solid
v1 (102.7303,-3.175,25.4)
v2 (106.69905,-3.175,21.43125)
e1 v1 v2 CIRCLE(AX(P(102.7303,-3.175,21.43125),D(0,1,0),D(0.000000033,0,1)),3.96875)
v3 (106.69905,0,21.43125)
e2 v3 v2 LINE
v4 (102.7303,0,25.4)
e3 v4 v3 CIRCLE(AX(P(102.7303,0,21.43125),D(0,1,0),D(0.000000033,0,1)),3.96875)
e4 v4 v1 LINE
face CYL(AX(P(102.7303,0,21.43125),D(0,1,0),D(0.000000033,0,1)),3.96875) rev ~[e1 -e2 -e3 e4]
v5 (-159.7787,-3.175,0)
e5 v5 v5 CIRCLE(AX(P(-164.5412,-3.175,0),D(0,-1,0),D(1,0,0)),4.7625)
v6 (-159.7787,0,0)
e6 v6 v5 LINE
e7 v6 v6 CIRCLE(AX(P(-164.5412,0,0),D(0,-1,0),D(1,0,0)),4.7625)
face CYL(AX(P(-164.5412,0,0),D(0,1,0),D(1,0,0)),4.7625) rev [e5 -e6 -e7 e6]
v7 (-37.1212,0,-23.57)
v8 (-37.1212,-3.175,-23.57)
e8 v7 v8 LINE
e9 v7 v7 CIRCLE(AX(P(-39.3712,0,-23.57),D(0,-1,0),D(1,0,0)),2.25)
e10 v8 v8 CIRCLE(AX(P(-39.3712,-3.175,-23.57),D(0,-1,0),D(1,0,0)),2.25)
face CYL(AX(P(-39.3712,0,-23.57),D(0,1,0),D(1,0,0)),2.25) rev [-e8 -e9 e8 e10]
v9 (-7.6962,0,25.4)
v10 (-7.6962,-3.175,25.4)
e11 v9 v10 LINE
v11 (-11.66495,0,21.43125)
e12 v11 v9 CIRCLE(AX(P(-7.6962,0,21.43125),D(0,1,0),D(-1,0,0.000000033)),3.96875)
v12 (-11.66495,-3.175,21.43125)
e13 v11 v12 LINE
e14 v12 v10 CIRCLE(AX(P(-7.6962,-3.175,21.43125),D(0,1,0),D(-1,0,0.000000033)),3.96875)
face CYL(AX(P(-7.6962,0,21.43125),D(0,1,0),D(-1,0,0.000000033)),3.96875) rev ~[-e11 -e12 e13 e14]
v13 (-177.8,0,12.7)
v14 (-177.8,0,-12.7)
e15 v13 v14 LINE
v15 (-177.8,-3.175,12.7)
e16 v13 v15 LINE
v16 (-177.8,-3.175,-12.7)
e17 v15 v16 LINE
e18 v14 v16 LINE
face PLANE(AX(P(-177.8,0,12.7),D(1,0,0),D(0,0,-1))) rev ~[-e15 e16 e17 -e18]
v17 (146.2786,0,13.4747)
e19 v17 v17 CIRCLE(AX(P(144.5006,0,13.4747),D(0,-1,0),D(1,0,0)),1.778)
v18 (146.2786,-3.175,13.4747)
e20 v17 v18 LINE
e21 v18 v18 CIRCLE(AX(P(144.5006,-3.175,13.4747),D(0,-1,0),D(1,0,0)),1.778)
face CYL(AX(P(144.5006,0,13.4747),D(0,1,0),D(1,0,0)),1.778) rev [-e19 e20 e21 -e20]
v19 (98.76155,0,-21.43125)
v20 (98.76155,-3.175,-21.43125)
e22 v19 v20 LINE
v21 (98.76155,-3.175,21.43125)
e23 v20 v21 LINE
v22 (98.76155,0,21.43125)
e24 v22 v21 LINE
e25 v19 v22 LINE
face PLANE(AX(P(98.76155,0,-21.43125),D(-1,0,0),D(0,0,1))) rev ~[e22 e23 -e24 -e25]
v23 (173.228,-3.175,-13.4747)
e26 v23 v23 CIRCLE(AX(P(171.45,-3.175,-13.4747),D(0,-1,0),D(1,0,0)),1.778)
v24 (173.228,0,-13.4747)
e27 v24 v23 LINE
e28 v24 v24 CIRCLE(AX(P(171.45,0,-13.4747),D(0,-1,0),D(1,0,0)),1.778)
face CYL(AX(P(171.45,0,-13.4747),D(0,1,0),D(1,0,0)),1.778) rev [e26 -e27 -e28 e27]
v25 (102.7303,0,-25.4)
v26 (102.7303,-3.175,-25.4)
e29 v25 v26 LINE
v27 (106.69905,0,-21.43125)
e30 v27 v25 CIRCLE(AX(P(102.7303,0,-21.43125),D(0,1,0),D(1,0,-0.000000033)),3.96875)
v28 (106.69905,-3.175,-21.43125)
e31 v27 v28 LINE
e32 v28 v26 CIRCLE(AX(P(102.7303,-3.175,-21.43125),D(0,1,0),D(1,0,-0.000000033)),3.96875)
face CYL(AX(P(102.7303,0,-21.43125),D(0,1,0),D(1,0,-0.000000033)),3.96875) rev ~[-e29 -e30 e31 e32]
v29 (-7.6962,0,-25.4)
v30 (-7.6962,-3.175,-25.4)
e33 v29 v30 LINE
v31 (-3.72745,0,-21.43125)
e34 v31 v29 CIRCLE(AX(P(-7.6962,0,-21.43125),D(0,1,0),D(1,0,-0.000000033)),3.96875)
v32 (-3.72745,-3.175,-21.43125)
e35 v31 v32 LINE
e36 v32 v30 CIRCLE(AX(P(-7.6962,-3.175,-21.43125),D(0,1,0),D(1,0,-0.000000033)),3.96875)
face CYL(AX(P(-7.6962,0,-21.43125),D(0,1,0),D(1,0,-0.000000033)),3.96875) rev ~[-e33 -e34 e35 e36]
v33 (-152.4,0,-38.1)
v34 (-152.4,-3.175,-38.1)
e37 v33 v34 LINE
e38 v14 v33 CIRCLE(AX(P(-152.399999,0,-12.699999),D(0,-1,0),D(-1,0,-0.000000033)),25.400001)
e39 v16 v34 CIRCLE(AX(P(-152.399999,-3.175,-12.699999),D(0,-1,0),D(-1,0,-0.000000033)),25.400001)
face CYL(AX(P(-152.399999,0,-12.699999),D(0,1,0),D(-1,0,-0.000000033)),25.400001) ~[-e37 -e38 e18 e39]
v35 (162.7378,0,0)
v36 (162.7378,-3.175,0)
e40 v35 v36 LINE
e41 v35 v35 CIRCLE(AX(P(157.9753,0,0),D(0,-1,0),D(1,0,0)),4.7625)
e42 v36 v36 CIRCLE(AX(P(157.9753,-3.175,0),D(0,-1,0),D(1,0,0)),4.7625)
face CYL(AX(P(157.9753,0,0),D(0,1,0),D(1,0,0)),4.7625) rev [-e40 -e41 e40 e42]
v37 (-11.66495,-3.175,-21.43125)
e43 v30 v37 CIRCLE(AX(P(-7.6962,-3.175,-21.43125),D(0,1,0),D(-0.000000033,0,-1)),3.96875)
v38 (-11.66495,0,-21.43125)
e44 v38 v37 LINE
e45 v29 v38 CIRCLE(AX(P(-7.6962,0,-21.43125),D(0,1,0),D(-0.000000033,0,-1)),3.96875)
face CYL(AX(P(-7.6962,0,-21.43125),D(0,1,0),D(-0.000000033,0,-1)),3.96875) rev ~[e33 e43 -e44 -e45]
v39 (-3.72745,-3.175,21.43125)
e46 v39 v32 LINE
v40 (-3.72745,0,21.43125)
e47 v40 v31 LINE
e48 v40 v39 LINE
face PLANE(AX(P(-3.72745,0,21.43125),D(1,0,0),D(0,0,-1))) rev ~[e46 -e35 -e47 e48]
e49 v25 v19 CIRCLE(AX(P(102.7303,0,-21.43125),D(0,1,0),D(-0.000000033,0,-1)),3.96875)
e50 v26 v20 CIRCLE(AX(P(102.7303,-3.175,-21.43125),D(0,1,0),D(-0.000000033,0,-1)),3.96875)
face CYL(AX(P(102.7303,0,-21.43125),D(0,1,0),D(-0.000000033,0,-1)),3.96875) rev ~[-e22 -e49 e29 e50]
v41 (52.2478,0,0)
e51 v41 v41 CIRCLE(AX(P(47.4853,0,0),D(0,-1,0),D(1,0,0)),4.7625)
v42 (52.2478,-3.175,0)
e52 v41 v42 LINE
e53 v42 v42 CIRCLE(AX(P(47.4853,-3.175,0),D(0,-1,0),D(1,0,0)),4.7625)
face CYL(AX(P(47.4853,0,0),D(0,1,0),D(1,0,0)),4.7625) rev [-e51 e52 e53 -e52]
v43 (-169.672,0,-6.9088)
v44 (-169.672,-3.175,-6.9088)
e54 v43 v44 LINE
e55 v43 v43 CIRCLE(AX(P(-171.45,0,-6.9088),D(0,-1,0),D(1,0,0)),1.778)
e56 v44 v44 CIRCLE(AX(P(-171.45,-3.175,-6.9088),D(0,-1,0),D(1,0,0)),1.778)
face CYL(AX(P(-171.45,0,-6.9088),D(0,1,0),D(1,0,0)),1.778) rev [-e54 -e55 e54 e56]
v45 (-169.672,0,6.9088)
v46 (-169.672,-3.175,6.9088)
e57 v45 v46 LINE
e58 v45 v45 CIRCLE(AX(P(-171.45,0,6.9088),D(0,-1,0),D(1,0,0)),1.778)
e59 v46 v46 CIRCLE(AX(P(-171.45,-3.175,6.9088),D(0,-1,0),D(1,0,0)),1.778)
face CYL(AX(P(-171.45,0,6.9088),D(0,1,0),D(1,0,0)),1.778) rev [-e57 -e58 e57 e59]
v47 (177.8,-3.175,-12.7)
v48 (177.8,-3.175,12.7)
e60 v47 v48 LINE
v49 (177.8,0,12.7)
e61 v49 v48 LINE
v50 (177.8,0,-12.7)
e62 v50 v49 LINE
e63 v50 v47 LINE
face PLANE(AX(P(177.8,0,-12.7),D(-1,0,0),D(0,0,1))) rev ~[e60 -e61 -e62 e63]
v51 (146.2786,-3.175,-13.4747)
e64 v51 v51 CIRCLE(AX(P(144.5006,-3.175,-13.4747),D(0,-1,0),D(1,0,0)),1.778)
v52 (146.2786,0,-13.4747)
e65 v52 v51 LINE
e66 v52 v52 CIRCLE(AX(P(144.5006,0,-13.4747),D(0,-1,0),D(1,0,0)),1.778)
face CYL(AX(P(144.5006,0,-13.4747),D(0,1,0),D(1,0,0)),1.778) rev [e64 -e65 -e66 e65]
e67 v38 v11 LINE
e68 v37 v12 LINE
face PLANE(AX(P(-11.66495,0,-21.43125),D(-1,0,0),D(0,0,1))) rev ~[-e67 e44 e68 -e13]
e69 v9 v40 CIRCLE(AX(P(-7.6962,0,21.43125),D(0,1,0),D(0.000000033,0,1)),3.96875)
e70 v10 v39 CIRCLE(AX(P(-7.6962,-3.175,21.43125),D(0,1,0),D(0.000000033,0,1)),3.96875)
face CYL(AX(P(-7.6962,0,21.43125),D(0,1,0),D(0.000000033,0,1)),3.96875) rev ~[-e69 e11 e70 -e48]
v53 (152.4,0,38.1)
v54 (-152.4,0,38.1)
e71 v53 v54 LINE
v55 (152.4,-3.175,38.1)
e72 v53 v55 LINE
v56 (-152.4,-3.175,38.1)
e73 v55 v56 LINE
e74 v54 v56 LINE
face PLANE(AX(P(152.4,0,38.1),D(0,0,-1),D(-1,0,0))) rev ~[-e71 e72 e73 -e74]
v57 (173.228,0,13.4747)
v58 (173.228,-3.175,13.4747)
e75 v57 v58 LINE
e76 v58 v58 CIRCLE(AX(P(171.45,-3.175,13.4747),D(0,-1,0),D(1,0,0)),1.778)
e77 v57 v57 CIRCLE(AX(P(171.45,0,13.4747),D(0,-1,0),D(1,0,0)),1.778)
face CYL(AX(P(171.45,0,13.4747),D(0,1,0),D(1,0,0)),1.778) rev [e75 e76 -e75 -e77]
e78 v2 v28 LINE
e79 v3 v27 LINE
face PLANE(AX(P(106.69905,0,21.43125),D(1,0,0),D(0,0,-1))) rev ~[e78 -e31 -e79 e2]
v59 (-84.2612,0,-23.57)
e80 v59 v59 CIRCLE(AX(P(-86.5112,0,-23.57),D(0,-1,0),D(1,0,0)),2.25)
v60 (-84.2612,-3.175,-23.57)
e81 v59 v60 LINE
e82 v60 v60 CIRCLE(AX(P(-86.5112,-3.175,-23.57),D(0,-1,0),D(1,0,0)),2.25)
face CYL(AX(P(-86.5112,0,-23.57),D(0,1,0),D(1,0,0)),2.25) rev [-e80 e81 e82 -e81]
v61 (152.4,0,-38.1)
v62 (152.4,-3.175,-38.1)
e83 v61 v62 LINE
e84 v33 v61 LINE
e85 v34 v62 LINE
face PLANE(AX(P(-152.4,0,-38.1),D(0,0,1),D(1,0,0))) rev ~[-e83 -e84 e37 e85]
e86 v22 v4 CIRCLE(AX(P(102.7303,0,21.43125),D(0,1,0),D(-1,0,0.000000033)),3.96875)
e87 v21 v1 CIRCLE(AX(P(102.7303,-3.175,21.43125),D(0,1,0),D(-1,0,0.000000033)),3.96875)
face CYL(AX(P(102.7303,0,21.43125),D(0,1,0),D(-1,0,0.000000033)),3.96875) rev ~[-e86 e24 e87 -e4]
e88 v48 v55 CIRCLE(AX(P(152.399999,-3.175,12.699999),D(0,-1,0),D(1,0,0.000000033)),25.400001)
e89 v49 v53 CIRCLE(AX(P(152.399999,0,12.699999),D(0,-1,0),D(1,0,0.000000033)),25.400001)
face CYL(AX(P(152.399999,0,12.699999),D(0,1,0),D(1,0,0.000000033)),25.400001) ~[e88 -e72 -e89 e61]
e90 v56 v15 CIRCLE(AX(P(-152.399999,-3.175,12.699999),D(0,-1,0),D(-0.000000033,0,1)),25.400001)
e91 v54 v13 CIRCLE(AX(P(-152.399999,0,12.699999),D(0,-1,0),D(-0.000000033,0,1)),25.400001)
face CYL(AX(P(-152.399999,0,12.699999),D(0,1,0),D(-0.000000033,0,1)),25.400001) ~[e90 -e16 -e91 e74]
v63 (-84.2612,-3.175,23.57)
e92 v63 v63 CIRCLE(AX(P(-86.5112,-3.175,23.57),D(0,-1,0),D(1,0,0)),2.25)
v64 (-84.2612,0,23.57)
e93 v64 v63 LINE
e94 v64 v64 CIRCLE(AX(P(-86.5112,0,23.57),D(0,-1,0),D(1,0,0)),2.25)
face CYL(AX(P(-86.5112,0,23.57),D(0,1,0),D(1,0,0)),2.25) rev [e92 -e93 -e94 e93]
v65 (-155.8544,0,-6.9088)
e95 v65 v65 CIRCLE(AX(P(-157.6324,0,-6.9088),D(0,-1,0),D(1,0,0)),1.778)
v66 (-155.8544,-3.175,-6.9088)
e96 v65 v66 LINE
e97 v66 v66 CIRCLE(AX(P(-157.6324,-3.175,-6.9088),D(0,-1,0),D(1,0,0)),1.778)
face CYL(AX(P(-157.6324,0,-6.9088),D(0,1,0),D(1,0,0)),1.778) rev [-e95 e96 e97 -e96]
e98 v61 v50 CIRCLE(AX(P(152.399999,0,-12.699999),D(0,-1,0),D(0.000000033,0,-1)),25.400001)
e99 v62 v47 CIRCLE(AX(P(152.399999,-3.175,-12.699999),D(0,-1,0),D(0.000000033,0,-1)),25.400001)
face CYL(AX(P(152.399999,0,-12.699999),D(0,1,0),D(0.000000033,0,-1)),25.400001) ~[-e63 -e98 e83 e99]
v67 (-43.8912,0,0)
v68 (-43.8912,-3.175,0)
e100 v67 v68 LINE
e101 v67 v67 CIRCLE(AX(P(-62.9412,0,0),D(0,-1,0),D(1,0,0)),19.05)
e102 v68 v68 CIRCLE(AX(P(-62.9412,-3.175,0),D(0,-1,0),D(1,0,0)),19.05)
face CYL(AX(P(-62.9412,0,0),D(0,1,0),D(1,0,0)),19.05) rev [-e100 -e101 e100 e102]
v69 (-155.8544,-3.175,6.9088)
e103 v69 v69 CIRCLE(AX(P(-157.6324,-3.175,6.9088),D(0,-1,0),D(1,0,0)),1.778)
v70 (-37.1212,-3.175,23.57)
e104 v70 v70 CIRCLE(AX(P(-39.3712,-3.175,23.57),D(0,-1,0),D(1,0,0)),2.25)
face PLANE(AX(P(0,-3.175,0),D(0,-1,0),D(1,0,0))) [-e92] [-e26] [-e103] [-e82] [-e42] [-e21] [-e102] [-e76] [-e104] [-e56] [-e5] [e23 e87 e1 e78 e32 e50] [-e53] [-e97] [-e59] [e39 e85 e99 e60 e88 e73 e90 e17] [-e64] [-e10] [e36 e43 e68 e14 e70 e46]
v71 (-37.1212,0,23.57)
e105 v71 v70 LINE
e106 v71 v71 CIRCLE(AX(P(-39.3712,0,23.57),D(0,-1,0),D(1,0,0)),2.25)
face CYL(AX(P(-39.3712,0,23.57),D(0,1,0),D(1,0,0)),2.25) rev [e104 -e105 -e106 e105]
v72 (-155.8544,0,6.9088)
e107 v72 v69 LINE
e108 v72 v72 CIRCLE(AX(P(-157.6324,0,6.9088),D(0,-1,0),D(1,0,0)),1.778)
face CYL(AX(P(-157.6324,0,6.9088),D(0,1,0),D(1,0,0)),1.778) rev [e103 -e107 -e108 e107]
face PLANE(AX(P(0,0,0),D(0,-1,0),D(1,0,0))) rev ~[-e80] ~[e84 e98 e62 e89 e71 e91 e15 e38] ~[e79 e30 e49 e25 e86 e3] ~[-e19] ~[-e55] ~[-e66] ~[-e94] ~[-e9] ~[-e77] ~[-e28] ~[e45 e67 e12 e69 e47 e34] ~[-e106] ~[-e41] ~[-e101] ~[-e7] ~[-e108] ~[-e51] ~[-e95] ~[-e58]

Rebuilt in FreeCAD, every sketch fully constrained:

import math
import FreeCAD as App
import Part
import Sketcher
Q = App.Units.Quantity

doc = App.newDocument("Part")
body = doc.addObject("PartDesign::Body", "Body")

sketch1 = body.newObject("Sketcher::SketchObject", "Sketch")
sketch1.AttachmentSupport = (doc.getObject("XZ_Plane"), [""])
sketch1.MapMode = "FlatFace"
sketch1.addGeometry([
    Part.ArcOfCircle(Part.Circle(App.Vector(152.4, 12.7, 0), App.Vector(0, 0, 1), 25.4), math.radians(0), math.radians(90)),
    Part.LineSegment(App.Vector(152.4, 38.1, 0), App.Vector(-152.4, 38.1, 0)),
    Part.ArcOfCircle(Part.Circle(App.Vector(-152.4, 12.7, 0), App.Vector(0, 0, 1), 25.4), math.radians(90), math.radians(180)),
    Part.LineSegment(App.Vector(-177.8, 12.7, 0), App.Vector(-177.8, -12.7, 0)),
    Part.ArcOfCircle(Part.Circle(App.Vector(-152.4, -12.7, 0), App.Vector(0, 0, 1), 25.4), math.radians(-180), math.radians(-90)),
    Part.LineSegment(App.Vector(-152.4, -38.1, 0), App.Vector(152.4, -38.1, 0)),
    Part.ArcOfCircle(Part.Circle(App.Vector(152.4, -12.7, 0), App.Vector(0, 0, 1), 25.4), math.radians(-90), math.radians(0)),
    Part.LineSegment(App.Vector(177.8, -12.7, 0), App.Vector(177.8, 12.7, 0)),
    Part.Circle(App.Vector(-86.5, -23.6, 0), App.Vector(0, 0, 1), 2.2),
    Part.Circle(App.Vector(-39.4, -23.6, 0), App.Vector(0, 0, 1), 2.2),
    Part.Circle(App.Vector(-171.4, -6.9, 0), App.Vector(0, 0, 1), 1.8),
    Part.Circle(App.Vector(-157.6, -6.9, 0), App.Vector(0, 0, 1), 1.8),
    Part.Circle(App.Vector(144.5, -13.5, 0), App.Vector(0, 0, 1), 1.8),
    Part.Circle(App.Vector(171.4, -13.5, 0), App.Vector(0, 0, 1), 1.8),
    Part.Circle(App.Vector(-164.5, 0, 0), App.Vector(0, 0, 1), 4.8),
    Part.Circle(App.Vector(-171.4, 6.9, 0), App.Vector(0, 0, 1), 1.8),
    Part.Circle(App.Vector(-157.6, 6.9, 0), App.Vector(0, 0, 1), 1.8),
    Part.Circle(App.Vector(-62.9, 0, 0), App.Vector(0, 0, 1), 19.1),
    Part.ArcOfCircle(Part.Circle(App.Vector(-7.7, 21.4, 0), App.Vector(0, 0, 1), 4), math.radians(0), math.radians(90)),
    Part.LineSegment(App.Vector(-3.7, 21.4, 0), App.Vector(-3.7, -21.4, 0)),
    Part.ArcOfCircle(Part.Circle(App.Vector(-7.7, -21.4, 0), App.Vector(0, 0, 1), 4), math.radians(-90), math.radians(0)),
    Part.ArcOfCircle(Part.Circle(App.Vector(-7.7, -21.4, 0), App.Vector(0, 0, 1), 4), math.radians(-180), math.radians(-90)),
    Part.LineSegment(App.Vector(-11.7, -21.4, 0), App.Vector(-11.7, 21.4, 0)),
    Part.ArcOfCircle(Part.Circle(App.Vector(-7.7, 21.4, 0), App.Vector(0, 0, 1), 4), math.radians(90), math.radians(180)),
    Part.Circle(App.Vector(-86.5, 23.6, 0), App.Vector(0, 0, 1), 2.2),
    Part.Circle(App.Vector(-39.4, 23.6, 0), App.Vector(0, 0, 1), 2.2),
    Part.Circle(App.Vector(47.5, 0, 0), App.Vector(0, 0, 1), 4.8),
    Part.ArcOfCircle(Part.Circle(App.Vector(102.7, 21.4, 0), App.Vector(0, 0, 1), 4), math.radians(0), math.radians(90)),
    Part.LineSegment(App.Vector(106.7, 21.4, 0), App.Vector(106.7, -21.4, 0)),
    Part.ArcOfCircle(Part.Circle(App.Vector(102.7, -21.4, 0), App.Vector(0, 0, 1), 4), math.radians(-90), math.radians(0)),
    Part.ArcOfCircle(Part.Circle(App.Vector(102.7, -21.4, 0), App.Vector(0, 0, 1), 4), math.radians(-180), math.radians(-90)),
    Part.LineSegment(App.Vector(98.8, -21.4, 0), App.Vector(98.8, 21.4, 0)),
    Part.ArcOfCircle(Part.Circle(App.Vector(102.7, 21.4, 0), App.Vector(0, 0, 1), 4), math.radians(90), math.radians(180)),
    Part.Circle(App.Vector(158, 0, 0), App.Vector(0, 0, 1), 4.8),
    Part.Circle(App.Vector(144.5, 13.5, 0), App.Vector(0, 0, 1), 1.8),
    Part.Circle(App.Vector(171.4, 13.5, 0), App.Vector(0, 0, 1), 1.8),
], False)
sketch1.addConstraint([
    Sketcher.Constraint("Tangent", 0, 2, 1, 1),
    Sketcher.Constraint("Tangent", 1, 2, 2, 1),
    Sketcher.Constraint("Tangent", 2, 2, 3, 1),
    Sketcher.Constraint("Tangent", 3, 2, 4, 1),
    Sketcher.Constraint("Tangent", 4, 2, 5, 1),
    Sketcher.Constraint("Tangent", 5, 2, 6, 1),
    Sketcher.Constraint("Tangent", 6, 2, 7, 1),
    Sketcher.Constraint("Tangent", 7, 2, 0, 1),
    Sketcher.Constraint("Tangent", 18, 1, 19, 1),
    Sketcher.Constraint("Tangent", 19, 2, 20, 2),
    Sketcher.Constraint("Tangent", 20, 1, 21, 2),
    Sketcher.Constraint("Tangent", 21, 1, 22, 1),
    Sketcher.Constraint("Tangent", 22, 2, 23, 2),
    Sketcher.Constraint("Tangent", 23, 1, 18, 2),
    Sketcher.Constraint("Tangent", 27, 1, 28, 1),
    Sketcher.Constraint("Tangent", 28, 2, 29, 2),
    Sketcher.Constraint("Tangent", 29, 1, 30, 2),
    Sketcher.Constraint("Tangent", 30, 1, 31, 1),
    Sketcher.Constraint("Tangent", 31, 2, 32, 2),
    Sketcher.Constraint("Tangent", 32, 1, 27, 2),
    Sketcher.Constraint("Horizontal", 1),
    Sketcher.Constraint("Vertical", 3),
    Sketcher.Constraint("Horizontal", 5),
    Sketcher.Constraint("Vertical", 7),
    Sketcher.Constraint("Vertical", 19),
    Sketcher.Constraint("Vertical", 22),
    Sketcher.Constraint("Vertical", 28),
    Sketcher.Constraint("Vertical", 31),
    Sketcher.Constraint("Equal", 0, 2),
    Sketcher.Constraint("Equal", 2, 4),
    Sketcher.Constraint("Equal", 4, 6),
    Sketcher.Constraint("Equal", 8, 9),
    Sketcher.Constraint("Equal", 10, 11),
    Sketcher.Constraint("Equal", 11, 12),
    Sketcher.Constraint("Equal", 12, 13),
    Sketcher.Constraint("Equal", 13, 15),
    Sketcher.Constraint("Equal", 15, 16),
    Sketcher.Constraint("Equal", 18, 20),
    Sketcher.Constraint("Equal", 20, 21),
    Sketcher.Constraint("Equal", 9, 24),
    Sketcher.Constraint("Equal", 24, 25),
    Sketcher.Constraint("Equal", 14, 26),
    Sketcher.Constraint("Equal", 23, 27),
    Sketcher.Constraint("Equal", 27, 29),
    Sketcher.Constraint("Equal", 29, 30),
    Sketcher.Constraint("Equal", 26, 33),
    Sketcher.Constraint("Equal", 16, 34),
    Sketcher.Constraint("Equal", 34, 35),
    Sketcher.Constraint("Symmetric", 0, 3, 4, 3, -1, 1),
    Sketcher.Constraint("Symmetric", 10, 3, 15, 3, -1),
    Sketcher.Constraint("Symmetric", 11, 3, 16, 3, -1),
    Sketcher.Constraint("Symmetric", 8, 3, 24, 3, -1),
    Sketcher.Constraint("Symmetric", 9, 3, 25, 3, -1),
    Sketcher.Constraint("Symmetric", 12, 3, 34, 3, -1),
    Sketcher.Constraint("Symmetric", 13, 3, 35, 3, -1),
    Sketcher.Constraint("Symmetric", 20, 1, 23, 1, -1),
    Sketcher.Constraint("Symmetric", 29, 1, 32, 1, -1),
    Sketcher.Constraint("PointOnObject", 14, 3, -1),
    Sketcher.Constraint("PointOnObject", 17, 3, -1),
    Sketcher.Constraint("PointOnObject", 26, 3, -1),
    Sketcher.Constraint("PointOnObject", 33, 3, -1),
    Sketcher.Constraint("Horizontal", 8, 3, 9, 3),
    Sketcher.Constraint("Horizontal", 10, 3, 11, 3),
    Sketcher.Constraint("Horizontal", 12, 3, 13, 3),
    Sketcher.Constraint("Horizontal", 23, 3, 27, 3),
    Sketcher.Constraint("Vertical", 23, 3, 20, 1),
    Sketcher.Constraint("Vertical", 32, 3, 29, 1),
    Sketcher.Constraint("Radius", 0, Q("1 in")),
    Sketcher.Constraint("Diameter", 17, Q("1.5 in")),
    Sketcher.Constraint("Diameter", 10, Q("0.14 in")),
    Sketcher.Constraint("DistanceX", 1, 2, 1, 1, Q("12 in")),
    Sketcher.Constraint("DistanceY", 3, 2, 3, 1, Q("1 in")),
    Sketcher.Constraint("Diameter", 14, Q("0.375 in")),
    Sketcher.Constraint("DistanceY", 20, 1, -1, 1, Q("1 in")),
    Sketcher.Constraint("Radius", 18, Q("0.15625 in")),
    Sketcher.Constraint("Diameter", 8, 4.5),
    Sketcher.Constraint("DistanceX", 10, 3, -1, 1, Q("6.75 in")),
    Sketcher.Constraint("DistanceX", -1, 1, 13, 3, Q("6.75 in")),
    Sketcher.Constraint("DistanceY", 10, 3, -1, 1, Q("0.272 in")),
    Sketcher.Constraint("DistanceX", 11, 3, -1, 1, Q("6.206 in")),
    Sketcher.Constraint("DistanceX", -1, 1, 12, 3, Q("5.689 in")),
    Sketcher.Constraint("DistanceX", 14, 3, -1, 1, Q("6.478 in")),
    Sketcher.Constraint("DistanceX", 17, 3, -1, 1, Q("2.478 in")),
    Sketcher.Constraint("DistanceX", 18, 3, -1, 1, Q("0.303 in")),
    Sketcher.Constraint("DistanceX", 26, 3, 27, 3, Q("2.175 in")),
    Sketcher.Constraint("DistanceX", 30, 3, 33, 3, Q("2.175 in")),
    Sketcher.Constraint("DistanceY", 12, 3, 34, 3, Q("1.061 in")),
    Sketcher.Constraint("DistanceX", -1, 1, 26, 3, Q("1.8695 in")),
    Sketcher.Constraint("DistanceX", 8, 3, -1, 1, 86.5112),
    Sketcher.Constraint("DistanceY", 8, 3, -1, 1, 23.57),
    Sketcher.Constraint("DistanceX", 9, 3, -1, 1, 39.3712),
])
pad1 = body.newObject("PartDesign::Pad", "Pad")
pad1.Profile = sketch1
pad1.Length = Q("0.125 in")

doc.recompute()
